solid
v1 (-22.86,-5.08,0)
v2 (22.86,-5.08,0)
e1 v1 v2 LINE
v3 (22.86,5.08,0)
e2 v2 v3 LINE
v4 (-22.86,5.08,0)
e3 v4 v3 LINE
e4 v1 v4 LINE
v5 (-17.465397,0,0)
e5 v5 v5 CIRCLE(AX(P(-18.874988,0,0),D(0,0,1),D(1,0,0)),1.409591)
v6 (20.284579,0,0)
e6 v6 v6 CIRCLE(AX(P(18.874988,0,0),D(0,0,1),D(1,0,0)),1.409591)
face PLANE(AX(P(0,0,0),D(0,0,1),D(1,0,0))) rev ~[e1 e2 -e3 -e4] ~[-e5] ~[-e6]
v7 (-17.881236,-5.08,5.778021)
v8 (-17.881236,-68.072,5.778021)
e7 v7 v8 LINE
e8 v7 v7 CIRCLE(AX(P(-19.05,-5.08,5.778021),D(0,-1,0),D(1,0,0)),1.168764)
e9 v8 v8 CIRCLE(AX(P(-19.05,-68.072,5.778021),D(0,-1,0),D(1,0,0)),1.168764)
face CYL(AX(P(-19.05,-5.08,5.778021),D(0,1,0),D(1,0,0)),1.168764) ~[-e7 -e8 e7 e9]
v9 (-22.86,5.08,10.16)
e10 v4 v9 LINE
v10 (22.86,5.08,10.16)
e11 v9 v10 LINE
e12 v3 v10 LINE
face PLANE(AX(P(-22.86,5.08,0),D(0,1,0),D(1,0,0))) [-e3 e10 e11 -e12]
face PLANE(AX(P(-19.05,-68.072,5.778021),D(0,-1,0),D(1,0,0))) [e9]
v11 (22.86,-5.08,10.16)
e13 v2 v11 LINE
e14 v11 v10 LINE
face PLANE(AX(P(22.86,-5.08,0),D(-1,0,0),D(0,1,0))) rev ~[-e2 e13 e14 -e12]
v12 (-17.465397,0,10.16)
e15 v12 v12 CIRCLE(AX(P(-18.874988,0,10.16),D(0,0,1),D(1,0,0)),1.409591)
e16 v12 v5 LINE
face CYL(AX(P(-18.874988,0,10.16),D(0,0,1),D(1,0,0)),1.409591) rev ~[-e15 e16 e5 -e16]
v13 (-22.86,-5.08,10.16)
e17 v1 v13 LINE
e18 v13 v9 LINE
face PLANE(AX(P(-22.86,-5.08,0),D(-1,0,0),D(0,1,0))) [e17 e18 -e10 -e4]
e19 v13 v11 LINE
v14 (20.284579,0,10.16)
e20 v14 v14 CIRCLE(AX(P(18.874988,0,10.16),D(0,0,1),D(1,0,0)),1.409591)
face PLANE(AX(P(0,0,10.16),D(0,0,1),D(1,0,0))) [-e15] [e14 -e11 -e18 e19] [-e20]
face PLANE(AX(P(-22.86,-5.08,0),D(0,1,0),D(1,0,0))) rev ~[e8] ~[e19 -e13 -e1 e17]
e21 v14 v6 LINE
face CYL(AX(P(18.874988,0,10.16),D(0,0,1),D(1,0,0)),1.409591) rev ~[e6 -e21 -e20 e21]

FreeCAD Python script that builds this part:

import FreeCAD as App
import Part
import Sketcher
from FreeCAD import Vector
Q = App.Units.Quantity

doc = App.newDocument("Part")
body = doc.addObject("PartDesign::Body", "Body")

# Sketch on XY plane
sketch1 = body.newObject("Sketcher::SketchObject", "Sketch")
sketch1.AttachmentSupport = (doc.getObject("XY_Plane"), [""])
sketch1.MapMode = "FlatFace"
sketch1.addGeometry([
    Part.LineSegment(Vector(-23, 5, 0), Vector(-23, -5, 0)),
    Part.LineSegment(Vector(-23, -5, 0), Vector(23, -5, 0)),
    Part.LineSegment(Vector(23, -5, 0), Vector(23, 5, 0)),
    Part.LineSegment(Vector(23, 5, 0), Vector(-23, 5, 0)),
], False)
sketch1.addConstraint([
    Sketcher.Constraint("Coincident", 0, 2, 1, 1),
    Sketcher.Constraint("Coincident", 1, 2, 2, 1),
    Sketcher.Constraint("Coincident", 2, 2, 3, 1),
    Sketcher.Constraint("Coincident", 3, 2, 0, 1),
    Sketcher.Constraint("Vertical", 0),
    Sketcher.Constraint("Horizontal", 1),
    Sketcher.Constraint("Vertical", 2),
    Sketcher.Constraint("Horizontal", 3),
    Sketcher.Constraint("Symmetric", 0, 2, 2, 2, -1, 1),
    Sketcher.Constraint("DistanceX", 1, 1, 1, 2, Q("1.8 in")),
    Sketcher.Constraint("DistanceY", 0, 2, 0, 1, Q("0.4 in")),
])
pad1 = body.newObject("PartDesign::Pad", "Pad")
pad1.Profile = sketch1
pad1.Length = Q("0.4 in")

# Sketch on XY plane
sketch2 = body.newObject("Sketcher::SketchObject", "Sketch001")
sketch2.AttachmentSupport = (doc.getObject("XY_Plane"), [""])
sketch2.MapMode = "FlatFace"
sketch2.AttachmentOffset = App.Placement(Vector(0, 0, 0.4 * 25.4), App.Rotation())
sketch2.addGeometry([
    Part.Circle(Vector(-18.9, 0, 0), Vector(0, 0, 1), 1.4),
    Part.Circle(Vector(18.9, 0, 0), Vector(0, 0, 1), 1.4),
], False)
sketch2.addConstraint([
    Sketcher.Constraint("Equal", 0, 1),
    Sketcher.Constraint("Symmetric", 0, 3, 1, 3, -1, 1),
    Sketcher.Constraint("PointOnObject", 0, 3, -1),
    Sketcher.Constraint("Diameter", 0, 2.819182),
    Sketcher.Constraint("DistanceX", 0, 3, -1, 1, 18.874988),
])
pocket1 = body.newObject("PartDesign::Pocket", "Pocket")
pocket1.Profile = sketch2
pocket1.Length = Q("1 in")

# Sketch on XZ plane
sketch3 = body.newObject("Sketcher::SketchObject", "Sketch002")
sketch3.AttachmentSupport = (doc.getObject("XZ_Plane"), [""])
sketch3.MapMode = "FlatFace"
sketch3.AttachmentOffset = App.Placement(Vector(0, 0, 0.2 * 25.4), App.Rotation())
sketch3.addGeometry(Part.Circle(Vector(-19.1, 5.8, 0), Vector(0, 0, 1), 1.2), False)
sketch3.addConstraint([
    Sketcher.Constraint("DistanceX", 0, 3, -1, 1, Q("0.75 in")),
    Sketcher.Constraint("Diameter", 0, 2.337528),
    Sketcher.Constraint("DistanceY", -1, 1, 0, 3, 5.778021),
])
pad2 = body.newObject("PartDesign::Pad", "Pad001")
pad2.Profile = sketch3
pad2.Length = Q("2.48 in")

doc.recompute()
